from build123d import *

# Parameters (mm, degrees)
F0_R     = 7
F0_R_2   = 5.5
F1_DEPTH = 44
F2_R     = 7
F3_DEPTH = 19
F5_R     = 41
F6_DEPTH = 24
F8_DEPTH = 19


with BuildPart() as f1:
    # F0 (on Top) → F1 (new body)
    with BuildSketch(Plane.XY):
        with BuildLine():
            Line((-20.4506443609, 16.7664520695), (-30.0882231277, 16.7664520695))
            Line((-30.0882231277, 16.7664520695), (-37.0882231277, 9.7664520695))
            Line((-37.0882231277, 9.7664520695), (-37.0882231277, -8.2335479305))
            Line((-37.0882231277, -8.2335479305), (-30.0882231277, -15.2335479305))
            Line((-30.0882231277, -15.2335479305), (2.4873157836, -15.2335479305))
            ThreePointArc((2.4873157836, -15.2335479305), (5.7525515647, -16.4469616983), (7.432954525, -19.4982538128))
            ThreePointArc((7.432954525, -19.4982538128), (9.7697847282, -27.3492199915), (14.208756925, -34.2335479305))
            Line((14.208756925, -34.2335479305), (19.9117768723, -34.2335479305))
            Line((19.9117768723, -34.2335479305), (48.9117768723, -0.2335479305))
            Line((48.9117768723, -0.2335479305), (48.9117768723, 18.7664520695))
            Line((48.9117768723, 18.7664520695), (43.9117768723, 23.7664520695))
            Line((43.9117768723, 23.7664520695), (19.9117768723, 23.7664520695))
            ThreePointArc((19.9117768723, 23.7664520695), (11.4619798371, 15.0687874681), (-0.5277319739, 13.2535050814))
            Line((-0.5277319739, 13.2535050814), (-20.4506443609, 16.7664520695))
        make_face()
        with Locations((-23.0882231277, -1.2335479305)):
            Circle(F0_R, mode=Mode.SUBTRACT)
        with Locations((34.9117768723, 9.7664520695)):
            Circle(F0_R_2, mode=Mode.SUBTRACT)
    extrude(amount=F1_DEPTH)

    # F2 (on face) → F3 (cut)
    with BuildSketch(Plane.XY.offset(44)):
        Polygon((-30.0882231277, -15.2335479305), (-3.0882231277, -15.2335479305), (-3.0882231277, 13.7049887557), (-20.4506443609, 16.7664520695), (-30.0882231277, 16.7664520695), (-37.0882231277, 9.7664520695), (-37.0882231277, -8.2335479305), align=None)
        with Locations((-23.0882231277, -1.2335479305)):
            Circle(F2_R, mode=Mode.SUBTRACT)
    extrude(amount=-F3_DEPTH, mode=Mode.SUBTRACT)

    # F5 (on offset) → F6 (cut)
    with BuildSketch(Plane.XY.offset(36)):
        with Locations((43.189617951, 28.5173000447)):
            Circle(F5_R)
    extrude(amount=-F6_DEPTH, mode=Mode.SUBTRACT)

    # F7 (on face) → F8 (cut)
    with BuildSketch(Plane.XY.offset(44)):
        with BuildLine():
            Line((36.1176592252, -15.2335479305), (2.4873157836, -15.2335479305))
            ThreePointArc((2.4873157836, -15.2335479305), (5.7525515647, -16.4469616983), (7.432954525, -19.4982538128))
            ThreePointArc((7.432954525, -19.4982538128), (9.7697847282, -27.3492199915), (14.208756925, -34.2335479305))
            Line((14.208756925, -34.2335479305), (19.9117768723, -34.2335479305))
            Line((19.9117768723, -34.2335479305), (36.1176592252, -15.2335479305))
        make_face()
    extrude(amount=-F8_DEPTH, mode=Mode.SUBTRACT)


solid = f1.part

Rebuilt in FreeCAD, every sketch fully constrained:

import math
import FreeCAD as App
import Part
import Sketcher

V = App.Vector
Q = App.Units.Quantity

doc = App.newDocument("Part")
body = doc.addObject("PartDesign::Body", "Body")

# Sketch on XY plane
sketch1 = body.newObject("Sketcher::SketchObject", "Sketch")
sketch1.AttachmentSupport = (doc.getObject("XY_Plane"), [""])
sketch1.MapMode = "FlatFace"
sketch1.addGeometry(Part.LineSegment(V(-20, 17, 0), V(-30, 17, 0)), False)
sketch1.addGeometry(Part.LineSegment(V(-30, 17, 0), V(-37, 10, 0)), False)
sketch1.addGeometry(Part.LineSegment(V(-37, 10, 0), V(-37, -8, 0)), False)
sketch1.addGeometry(Part.LineSegment(V(-37, -8, 0), V(-30, -15, 0)), False)
sketch1.addGeometry(Part.LineSegment(V(-30, -15, 0), V(2, -15, 0)), False)
sketch1.addGeometry(Part.ArcOfCircle(Part.Circle(V(2, -20, 0), V(0, 0, 1), 5), math.radians(8), math.radians(90)), False)
sketch1.addGeometry(Part.ArcOfCircle(Part.Circle(V(36, -15, 0), V(0, 0, 1), 29), math.radians(-172), math.radians(-139)), False)
sketch1.addGeometry(Part.LineSegment(V(14, -34, 0), V(20, -34, 0)), False)
sketch1.addGeometry(Part.LineSegment(V(20, -34, 0), V(49, 0, 0)), False)
sketch1.addGeometry(Part.LineSegment(V(49, 0, 0), V(49, 19, 0)), False)
sketch1.addGeometry(Part.LineSegment(V(49, 19, 0), V(44, 24, 0)), False)
sketch1.addGeometry(Part.LineSegment(V(44, 24, 0), V(20, 24, 0)), False)
sketch1.addGeometry(Part.ArcOfCircle(Part.Circle(V(3, 32, 0), V(0, 0, 1), 19), math.radians(-100), math.radians(-26)), False)
sketch1.addGeometry(Part.LineSegment(V(-1, 13, 0), V(-20, 17, 0)), False)
sketch1.addGeometry(Part.Circle(V(-23, -1, 0), V(0, 0, 1), 7), False)
sketch1.addGeometry(Part.Circle(V(35, 10, 0), V(0, 0, 1), 6), False)
sketch1.addConstraint(Sketcher.Constraint("Coincident", 0, 2, 1, 1))
sketch1.addConstraint(Sketcher.Constraint("Coincident", 1, 2, 2, 1))
sketch1.addConstraint(Sketcher.Constraint("Coincident", 2, 2, 3, 1))
sketch1.addConstraint(Sketcher.Constraint("Coincident", 3, 2, 4, 1))
sketch1.addConstraint(Sketcher.Constraint("Tangent", 4, 2, 5, 2))
sketch1.addConstraint(Sketcher.Constraint("Tangent", 5, 1, 6, 1))
sketch1.addConstraint(Sketcher.Constraint("Coincident", 6, 2, 7, 1))
sketch1.addConstraint(Sketcher.Constraint("Coincident", 7, 2, 8, 1))
sketch1.addConstraint(Sketcher.Constraint("Coincident", 8, 2, 9, 1))
sketch1.addConstraint(Sketcher.Constraint("Coincident", 9, 2, 10, 1))
sketch1.addConstraint(Sketcher.Constraint("Coincident", 10, 2, 11, 1))
sketch1.addConstraint(Sketcher.Constraint("Coincident", 11, 2, 12, 2))
sketch1.addConstraint(Sketcher.Constraint("Tangent", 12, 1, 13, 1))
sketch1.addConstraint(Sketcher.Constraint("Coincident", 13, 2, 0, 1))
sketch1.addConstraint(Sketcher.Constraint("Horizontal", 0))
sketch1.addConstraint(Sketcher.Constraint("Vertical", 2))
sketch1.addConstraint(Sketcher.Constraint("Horizontal", 4))
sketch1.addConstraint(Sketcher.Constraint("Horizontal", 7))
sketch1.addConstraint(Sketcher.Constraint("Vertical", 9))
sketch1.addConstraint(Sketcher.Constraint("Horizontal", 11))
sketch1.addConstraint(Sketcher.Constraint("Perpendicular", 1, 3))
sketch1.addConstraint(Sketcher.Constraint("Parallel", 3, 10))
sketch1.addConstraint(Sketcher.Constraint("Horizontal", 15, 3, 1, 2))
sketch1.addConstraint(Sketcher.Constraint("Horizontal", 6, 3, 3, 2))
sketch1.addConstraint(Sketcher.Constraint("Vertical", 0, 2, 3, 2))
sketch1.addConstraint(Sketcher.Constraint("Vertical", 7, 2, 11, 2))
sketch1.addConstraint(Sketcher.Constraint("Equal", 1, 3))
sketch1.addConstraint(Sketcher.Constraint("Diameter", 14, 14.0))
sketch1.addConstraint(Sketcher.Constraint("Diameter", 15, 11.0))
sketch1.addConstraint(Sketcher.Constraint("Radius", 5, 5.0))
sketch1.addConstraint(Sketcher.Constraint("Radius", 6, 29.0))
sketch1.addConstraint(Sketcher.Constraint("Radius", 12, 19.0))
sketch1.addConstraint(Sketcher.Constraint("DistanceX", 11, 2, 11, 1, 24.0))
sketch1.addConstraint(Sketcher.Constraint("DistanceY", 2, 2, 2, 1, 18.0))
sketch1.addConstraint(Sketcher.Constraint("DistanceY", 9, 1, 9, 2, 19.0))
sketch1.addConstraint(Sketcher.Constraint("Angle", 13, Q("170 deg")))
sketch1.addConstraint(Sketcher.Constraint("DistanceY", 5, 3, 14, 3, 19.0))
sketch1.addConstraint(Sketcher.Constraint("DistanceY", 6, 3, 15, 3, 25.0))
sketch1.addConstraint(Sketcher.Constraint("DistanceX", 14, 3, 15, 3, 58.0))
sketch1.addConstraint(Sketcher.Constraint("DistanceX", 0, 2, 14, 3, 7.0))
sketch1.addConstraint(Sketcher.Constraint("DistanceY", 6, 2, 5, 3, 14.0))
sketch1.addConstraint(Sketcher.Constraint("DistanceX", 15, 3, 8, 2, 14.0))
sketch1.addConstraint(Sketcher.Constraint("DistanceY", 8, 2, 15, 3, 10.0))
sketch1.addConstraint(Sketcher.Constraint("DistanceX", 7, 2, 8, 2, 29.0))
sketch1.addConstraint(Sketcher.Constraint("DistanceX", 0, 2, 0, 1, 9.637579))
sketch1.addConstraint(Sketcher.Constraint("DistanceX", 4, 1, 4, 2, 32.575539))
sketch1.addConstraint(Sketcher.Constraint("DistanceX", -1, 1, 6, 3, 36.117659))
sketch1.addConstraint(Sketcher.Constraint("DistanceY", 5, 3, -1, 1, 20.233548))
pad1 = body.newObject("PartDesign::Pad", "Pad")
pad1.Profile = sketch1
pad1.Length = 44

# Sketch on XY plane
sketch2 = body.newObject("Sketcher::SketchObject", "Sketch001")
sketch2.AttachmentSupport = (doc.getObject("XY_Plane"), [""])
sketch2.MapMode = "FlatFace"
sketch2.AttachmentOffset = App.Placement(V(0, 0, 44), App.Rotation())
sketch2.addGeometry(Part.LineSegment(V(-30, -15, 0), V(-3, -15, 0)), False)
sketch2.addGeometry(Part.LineSegment(V(-3, -15, 0), V(-3, 14, 0)), False)
sketch2.addGeometry(Part.LineSegment(V(-3, 14, 0), V(-20, 17, 0)), False)
sketch2.addGeometry(Part.LineSegment(V(-20, 17, 0), V(-30, 17, 0)), False)
sketch2.addGeometry(Part.LineSegment(V(-30, 17, 0), V(-37, 10, 0)), False)
sketch2.addGeometry(Part.LineSegment(V(-37, 10, 0), V(-37, -8, 0)), False)
sketch2.addGeometry(Part.LineSegment(V(-37, -8, 0), V(-30, -15, 0)), False)
sketch2.addGeometry(Part.Circle(V(-23, -1, 0), V(0, 0, 1), 7), False)
sketch2.addConstraint(Sketcher.Constraint("Coincident", 0, 2, 1, 1))
sketch2.addConstraint(Sketcher.Constraint("Coincident", 1, 2, 2, 1))
sketch2.addConstraint(Sketcher.Constraint("Coincident", 2, 2, 3, 1))
sketch2.addConstraint(Sketcher.Constraint("Coincident", 3, 2, 4, 1))
sketch2.addConstraint(Sketcher.Constraint("Coincident", 4, 2, 5, 1))
sketch2.addConstraint(Sketcher.Constraint("Coincident", 5, 2, 6, 1))
sketch2.addConstraint(Sketcher.Constraint("Coincident", 6, 2, 0, 1))
sketch2.addConstraint(Sketcher.Constraint("Horizontal", 0))
sketch2.addConstraint(Sketcher.Constraint("Vertical", 1))
sketch2.addConstraint(Sketcher.Constraint("Horizontal", 3))
sketch2.addConstraint(Sketcher.Constraint("Vertical", 5))
sketch2.addConstraint(Sketcher.Constraint("Perpendicular", 4, 6))
sketch2.addConstraint(Sketcher.Constraint("Vertical", 3, 2, 6, 2))
sketch2.addConstraint(Sketcher.Constraint("Equal", 4, 6))
sketch2.addConstraint(Sketcher.Constraint("Diameter", 7, 14.0))
sketch2.addConstraint(Sketcher.Constraint("DistanceX", 0, 1, 0, 2, 27.0))
sketch2.addConstraint(Sketcher.Constraint("DistanceY", 5, 2, 5, 1, 18.0))
sketch2.addConstraint(Sketcher.Constraint("Angle", 2, Q("170 deg")))
sketch2.addConstraint(Sketcher.Constraint("DistanceX", 7, 3, 0, 2, 20.0))
sketch2.addConstraint(Sketcher.Constraint("DistanceY", 0, 2, 7, 3, 14.0))
sketch2.addConstraint(Sketcher.Constraint("DistanceY", 7, 3, 2, 2, 18.0))
sketch2.addConstraint(Sketcher.Constraint("DistanceX", 3, 2, 3, 1, 9.637579))
sketch2.addConstraint(Sketcher.Constraint("DistanceY", -1, 1, 1, 2, 13.704989))
sketch2.addConstraint(Sketcher.Constraint("DistanceX", 7, 3, -1, 1, 23.088223))
pocket1 = body.newObject("PartDesign::Pocket", "Pocket")
pocket1.Profile = sketch2
pocket1.Length = 19

# Sketch on XY plane
sketch3 = body.newObject("Sketcher::SketchObject", "Sketch002")
sketch3.AttachmentSupport = (doc.getObject("XY_Plane"), [""])
sketch3.MapMode = "FlatFace"
sketch3.AttachmentOffset = App.Placement(V(0, 0, 36), App.Rotation())
sketch3.addGeometry(Part.Circle(V(43, 29, 0), V(0, 0, 1), 41), False)
sketch3.addConstraint(Sketcher.Constraint("Diameter", 0, 82.0))
sketch3.addConstraint(Sketcher.Constraint("DistanceY", -1, 1, 0, 3, 28.5173))
sketch3.addConstraint(Sketcher.Constraint("DistanceX", -1, 1, 0, 3, 43.189618))
pocket2 = body.newObject("PartDesign::Pocket", "Pocket001")
pocket2.Profile = sketch3
pocket2.Length = 24

# Sketch on XY plane
sketch4 = body.newObject("Sketcher::SketchObject", "Sketch003")
sketch4.AttachmentSupport = (doc.getObject("XY_Plane"), [""])
sketch4.MapMode = "FlatFace"
sketch4.AttachmentOffset = App.Placement(V(0, 0, 44), App.Rotation())
sketch4.addGeometry(Part.LineSegment(V(36, -15, 0), V(2, -15, 0)), False)
sketch4.addGeometry(Part.ArcOfCircle(Part.Circle(V(2, -20, 0), V(0, 0, 1), 5), math.radians(8), math.radians(90)), False)
sketch4.addGeometry(Part.ArcOfCircle(Part.Circle(V(36, -15, 0), V(0, 0, 1), 29), math.radians(-172), math.radians(-139)), False)
sketch4.addGeometry(Part.LineSegment(V(14, -34, 0), V(20, -34, 0)), False)
sketch4.addGeometry(Part.LineSegment(V(20, -34, 0), V(36, -15, 0)), False)
sketch4.addConstraint(Sketcher.Constraint("Tangent", 0, 2, 1, 2))
sketch4.addConstraint(Sketcher.Constraint("Tangent", 1, 1, 2, 1))
sketch4.addConstraint(Sketcher.Constraint("Coincident", 2, 2, 3, 1))
sketch4.addConstraint(Sketcher.Constraint("Coincident", 3, 2, 4, 1))
sketch4.addConstraint(Sketcher.Constraint("Coincident", 4, 2, 0, 1))
sketch4.addConstraint(Sketcher.Constraint("Horizontal", 0))
sketch4.addConstraint(Sketcher.Constraint("Horizontal", 3))
sketch4.addConstraint(Sketcher.Constraint("Coincident", 4, 2, 2, 3))
sketch4.addConstraint(Sketcher.Constraint("Radius", 1, 5.0))
sketch4.addConstraint(Sketcher.Constraint("Radius", 2, 29.0))
sketch4.addConstraint(Sketcher.Constraint("DistanceY", 2, 2, 1, 3, 14.0))
sketch4.addConstraint(Sketcher.Constraint("DistanceX", 3, 1, 3, 2, 5.70302))
sketch4.addConstraint(Sketcher.Constraint("DistanceX", -1, 1, 2, 3, 36.117659))
sketch4.addConstraint(Sketcher.Constraint("DistanceY", 1, 3, -1, 1, 20.233548))
pocket3 = body.newObject("PartDesign::Pocket", "Pocket002")
pocket3.Profile = sketch4
pocket3.Length = 19

doc.recompute()
